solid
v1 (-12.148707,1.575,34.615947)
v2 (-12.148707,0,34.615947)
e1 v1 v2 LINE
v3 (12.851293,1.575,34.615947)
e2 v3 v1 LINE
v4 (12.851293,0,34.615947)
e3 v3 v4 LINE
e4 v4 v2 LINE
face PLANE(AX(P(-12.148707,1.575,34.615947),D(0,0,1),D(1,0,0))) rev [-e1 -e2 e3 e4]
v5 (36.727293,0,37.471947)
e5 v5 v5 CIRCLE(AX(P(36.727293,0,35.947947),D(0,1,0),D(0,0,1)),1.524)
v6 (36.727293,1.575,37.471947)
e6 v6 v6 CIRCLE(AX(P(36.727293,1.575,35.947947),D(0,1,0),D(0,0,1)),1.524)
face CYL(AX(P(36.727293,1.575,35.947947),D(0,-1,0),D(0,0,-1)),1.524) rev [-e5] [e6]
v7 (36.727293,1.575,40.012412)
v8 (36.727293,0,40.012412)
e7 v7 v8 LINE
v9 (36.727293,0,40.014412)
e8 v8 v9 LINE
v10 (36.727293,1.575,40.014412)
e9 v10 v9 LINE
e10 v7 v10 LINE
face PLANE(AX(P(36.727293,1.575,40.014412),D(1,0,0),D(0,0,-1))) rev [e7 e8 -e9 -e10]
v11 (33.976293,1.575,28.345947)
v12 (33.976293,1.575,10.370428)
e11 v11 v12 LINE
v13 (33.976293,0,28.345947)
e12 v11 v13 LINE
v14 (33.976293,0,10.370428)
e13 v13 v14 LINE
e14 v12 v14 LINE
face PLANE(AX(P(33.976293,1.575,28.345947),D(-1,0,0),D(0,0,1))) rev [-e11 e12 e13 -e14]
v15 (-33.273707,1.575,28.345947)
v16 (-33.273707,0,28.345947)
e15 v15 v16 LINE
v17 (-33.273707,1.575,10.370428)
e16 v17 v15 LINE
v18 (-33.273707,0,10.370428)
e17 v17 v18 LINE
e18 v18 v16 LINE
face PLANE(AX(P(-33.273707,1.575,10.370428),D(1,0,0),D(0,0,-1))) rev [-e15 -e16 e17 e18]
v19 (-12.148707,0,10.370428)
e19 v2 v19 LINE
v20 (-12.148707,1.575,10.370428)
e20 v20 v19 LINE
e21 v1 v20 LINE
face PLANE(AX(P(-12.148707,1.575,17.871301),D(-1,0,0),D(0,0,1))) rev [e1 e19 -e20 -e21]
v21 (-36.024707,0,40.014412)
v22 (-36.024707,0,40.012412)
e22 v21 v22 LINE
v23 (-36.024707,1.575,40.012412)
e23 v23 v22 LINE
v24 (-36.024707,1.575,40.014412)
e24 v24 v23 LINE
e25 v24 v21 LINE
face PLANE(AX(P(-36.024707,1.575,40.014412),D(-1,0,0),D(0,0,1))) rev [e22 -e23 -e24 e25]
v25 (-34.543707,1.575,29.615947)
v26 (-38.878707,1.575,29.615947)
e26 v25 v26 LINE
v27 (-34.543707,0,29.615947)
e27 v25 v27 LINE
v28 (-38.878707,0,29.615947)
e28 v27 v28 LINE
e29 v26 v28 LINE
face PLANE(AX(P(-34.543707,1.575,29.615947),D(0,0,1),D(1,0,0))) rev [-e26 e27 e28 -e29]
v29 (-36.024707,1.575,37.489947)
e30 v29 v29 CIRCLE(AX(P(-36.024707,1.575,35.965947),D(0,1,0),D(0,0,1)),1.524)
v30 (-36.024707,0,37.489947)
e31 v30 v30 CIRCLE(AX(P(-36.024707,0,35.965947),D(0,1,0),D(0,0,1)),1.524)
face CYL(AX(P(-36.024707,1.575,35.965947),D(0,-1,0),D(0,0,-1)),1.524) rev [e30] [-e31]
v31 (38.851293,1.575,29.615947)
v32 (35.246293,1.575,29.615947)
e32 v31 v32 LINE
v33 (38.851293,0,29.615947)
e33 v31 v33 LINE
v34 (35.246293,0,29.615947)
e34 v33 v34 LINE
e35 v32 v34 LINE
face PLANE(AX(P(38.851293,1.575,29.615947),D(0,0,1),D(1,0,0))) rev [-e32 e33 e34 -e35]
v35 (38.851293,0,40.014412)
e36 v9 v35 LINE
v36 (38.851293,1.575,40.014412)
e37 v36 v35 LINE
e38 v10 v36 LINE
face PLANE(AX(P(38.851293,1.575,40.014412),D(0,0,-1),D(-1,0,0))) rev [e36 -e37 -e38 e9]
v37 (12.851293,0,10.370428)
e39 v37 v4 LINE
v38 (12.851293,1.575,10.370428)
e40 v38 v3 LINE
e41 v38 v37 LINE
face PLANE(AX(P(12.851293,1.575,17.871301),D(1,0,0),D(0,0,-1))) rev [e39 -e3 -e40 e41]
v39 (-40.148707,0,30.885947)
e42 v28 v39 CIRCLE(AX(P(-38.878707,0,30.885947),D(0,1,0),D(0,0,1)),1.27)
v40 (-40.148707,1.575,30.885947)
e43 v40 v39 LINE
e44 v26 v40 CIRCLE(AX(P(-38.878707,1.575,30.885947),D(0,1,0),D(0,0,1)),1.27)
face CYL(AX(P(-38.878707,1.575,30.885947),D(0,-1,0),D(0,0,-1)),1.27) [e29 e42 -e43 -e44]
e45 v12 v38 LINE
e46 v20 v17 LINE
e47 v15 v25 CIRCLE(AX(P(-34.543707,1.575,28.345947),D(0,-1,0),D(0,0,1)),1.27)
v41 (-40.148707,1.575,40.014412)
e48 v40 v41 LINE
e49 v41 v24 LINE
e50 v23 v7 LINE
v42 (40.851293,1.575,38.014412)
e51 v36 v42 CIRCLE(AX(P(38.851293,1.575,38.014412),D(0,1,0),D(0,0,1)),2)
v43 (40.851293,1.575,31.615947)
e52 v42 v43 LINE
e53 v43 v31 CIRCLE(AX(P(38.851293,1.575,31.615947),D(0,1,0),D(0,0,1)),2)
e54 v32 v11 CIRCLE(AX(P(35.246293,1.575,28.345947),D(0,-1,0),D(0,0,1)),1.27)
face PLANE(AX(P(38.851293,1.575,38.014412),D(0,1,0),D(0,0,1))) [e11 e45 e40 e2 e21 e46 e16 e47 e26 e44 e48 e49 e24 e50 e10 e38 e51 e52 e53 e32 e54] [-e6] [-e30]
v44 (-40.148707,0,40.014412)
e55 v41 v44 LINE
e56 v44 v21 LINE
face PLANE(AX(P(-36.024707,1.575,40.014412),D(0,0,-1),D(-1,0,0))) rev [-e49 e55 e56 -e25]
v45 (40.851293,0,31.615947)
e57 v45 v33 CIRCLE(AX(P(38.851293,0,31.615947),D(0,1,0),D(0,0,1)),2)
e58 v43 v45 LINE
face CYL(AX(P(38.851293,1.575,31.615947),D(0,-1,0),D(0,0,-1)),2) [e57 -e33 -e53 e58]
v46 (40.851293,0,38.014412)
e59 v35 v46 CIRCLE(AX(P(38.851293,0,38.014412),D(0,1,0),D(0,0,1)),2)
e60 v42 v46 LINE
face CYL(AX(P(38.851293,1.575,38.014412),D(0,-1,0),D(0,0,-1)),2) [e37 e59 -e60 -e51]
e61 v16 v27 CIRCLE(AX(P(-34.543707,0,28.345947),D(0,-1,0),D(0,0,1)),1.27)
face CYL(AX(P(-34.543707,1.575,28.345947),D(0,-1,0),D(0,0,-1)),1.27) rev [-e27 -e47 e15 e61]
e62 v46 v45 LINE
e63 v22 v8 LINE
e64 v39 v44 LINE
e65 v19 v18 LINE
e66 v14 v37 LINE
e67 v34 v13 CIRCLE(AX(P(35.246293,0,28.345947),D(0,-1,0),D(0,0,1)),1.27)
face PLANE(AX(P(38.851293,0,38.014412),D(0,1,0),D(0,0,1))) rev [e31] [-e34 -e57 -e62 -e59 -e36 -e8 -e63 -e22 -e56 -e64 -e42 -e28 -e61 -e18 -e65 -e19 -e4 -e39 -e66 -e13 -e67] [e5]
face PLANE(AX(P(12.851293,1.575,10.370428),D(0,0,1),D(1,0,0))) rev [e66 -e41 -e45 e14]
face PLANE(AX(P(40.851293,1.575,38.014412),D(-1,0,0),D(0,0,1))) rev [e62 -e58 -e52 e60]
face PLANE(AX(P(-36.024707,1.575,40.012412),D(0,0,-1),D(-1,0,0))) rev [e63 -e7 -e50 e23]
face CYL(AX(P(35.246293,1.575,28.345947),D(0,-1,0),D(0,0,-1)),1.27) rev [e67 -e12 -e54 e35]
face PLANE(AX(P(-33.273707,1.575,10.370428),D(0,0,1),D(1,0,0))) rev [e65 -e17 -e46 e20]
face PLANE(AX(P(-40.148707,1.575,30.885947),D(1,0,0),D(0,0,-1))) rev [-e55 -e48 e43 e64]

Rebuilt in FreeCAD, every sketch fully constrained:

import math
import FreeCAD as App
import Part
import Sketcher
Q = App.Units.Quantity

doc = App.newDocument("Part")
body = doc.addObject("PartDesign::Body", "Body")

# Sketch on XZ plane
sketch1 = body.newObject("Sketcher::SketchObject", "Sketch")
sketch1.AttachmentSupport = (doc.getObject("XZ_Plane"), [""])
sketch1.MapMode = "FlatFace"
sketch1.addGeometry([
    Part.LineSegment(App.Vector(36.7273, 40.0144, 0), App.Vector(38.8513, 40.0144, 0)),  # 0
    Part.ArcOfCircle(Part.Circle(App.Vector(38.8513, 38.0144, 0), App.Vector(0, 0, 1), 2), math.radians(0), math.radians(90)),  # 1
    Part.LineSegment(App.Vector(40.8513, 38.0144, 0), App.Vector(40.8513, 31.6159, 0)),  # 2
    Part.ArcOfCircle(Part.Circle(App.Vector(38.8513, 31.6159, 0), App.Vector(0, 0, 1), 2), math.radians(-90), math.radians(0)),  # 3
    Part.LineSegment(App.Vector(38.8513, 29.6159, 0), App.Vector(35.2463, 29.6159, 0)),  # 4
    Part.ArcOfCircle(Part.Circle(App.Vector(35.2463, 28.3459, 0), App.Vector(0, 0, 1), 1.27), math.radians(90), math.radians(180)),  # 5
    Part.LineSegment(App.Vector(33.9763, 28.3459, 0), App.Vector(33.9763, 10.3704, 0)),  # 6
    Part.LineSegment(App.Vector(33.9763, 10.3704, 0), App.Vector(12.8513, 10.3704, 0)),  # 7
    Part.LineSegment(App.Vector(12.8513, 10.3704, 0), App.Vector(12.8513, 34.6159, 0)),  # 8
    Part.LineSegment(App.Vector(12.8513, 34.6159, 0), App.Vector(-12.1487, 34.6159, 0)),  # 9
    Part.LineSegment(App.Vector(-12.1487, 34.6159, 0), App.Vector(-12.1487, 10.3704, 0)),  # 10
    Part.LineSegment(App.Vector(-12.1487, 10.3704, 0), App.Vector(-33.2737, 10.3704, 0)),  # 11
    Part.LineSegment(App.Vector(-33.2737, 10.3704, 0), App.Vector(-33.2737, 28.3459, 0)),  # 12
    Part.ArcOfCircle(Part.Circle(App.Vector(-34.5437, 28.3459, 0), App.Vector(0, 0, 1), 1.27), math.radians(0), math.radians(90)),  # 13
    Part.LineSegment(App.Vector(-34.5437, 29.6159, 0), App.Vector(-38.8787, 29.6159, 0)),  # 14
    Part.ArcOfCircle(Part.Circle(App.Vector(-38.8787, 30.8859, 0), App.Vector(0, 0, 1), 1.27), math.radians(180), math.radians(270)),  # 15
    Part.LineSegment(App.Vector(-40.1487, 30.8859, 0), App.Vector(-40.1487, 40.0144, 0)),  # 16
    Part.LineSegment(App.Vector(-40.1487, 40.0144, 0), App.Vector(-36.0247, 40.0144, 0)),  # 17
    Part.LineSegment(App.Vector(-36.0247, 40.0144, 0), App.Vector(-36.0247, 40.0124, 0)),  # 18
    Part.LineSegment(App.Vector(-36.0247, 40.0124, 0), App.Vector(36.7273, 40.0124, 0)),  # 19
    Part.LineSegment(App.Vector(36.7273, 40.0124, 0), App.Vector(36.7273, 40.0144, 0)),  # 20
    Part.Circle(App.Vector(-36.0247, 35.9659, 0), App.Vector(0, 0, 1), 1.524),  # 21
    Part.Circle(App.Vector(36.7273, 35.9479, 0), App.Vector(0, 0, 1), 1.524),  # 22
], False)
sketch1.addConstraint([
    Sketcher.Constraint("Tangent", 0, 2, 1, 2),
    Sketcher.Constraint("Tangent", 1, 1, 2, 1),
    Sketcher.Constraint("Tangent", 2, 2, 3, 2),
    Sketcher.Constraint("Tangent", 3, 1, 4, 1),
    Sketcher.Constraint("Tangent", 4, 2, 5, 1),
    Sketcher.Constraint("Tangent", 5, 2, 6, 1),
    Sketcher.Constraint("Coincident", 6, 2, 7, 1),
    Sketcher.Constraint("Coincident", 7, 2, 8, 1),
    Sketcher.Constraint("Coincident", 8, 2, 9, 1),
    Sketcher.Constraint("Coincident", 9, 2, 10, 1),
    Sketcher.Constraint("Coincident", 10, 2, 11, 1),
    Sketcher.Constraint("Coincident", 11, 2, 12, 1),
    Sketcher.Constraint("Tangent", 12, 2, 13, 1),
    Sketcher.Constraint("Tangent", 13, 2, 14, 1),
    Sketcher.Constraint("Tangent", 14, 2, 15, 2),
    Sketcher.Constraint("Tangent", 15, 1, 16, 1),
    Sketcher.Constraint("Coincident", 16, 2, 17, 1),
    Sketcher.Constraint("Coincident", 17, 2, 18, 1),
    Sketcher.Constraint("Coincident", 18, 2, 19, 1),
    Sketcher.Constraint("Coincident", 19, 2, 20, 1),
    Sketcher.Constraint("Coincident", 20, 2, 0, 1),
    Sketcher.Constraint("Horizontal", 0),
    Sketcher.Constraint("Vertical", 2),
    Sketcher.Constraint("Horizontal", 4),
    Sketcher.Constraint("Vertical", 6),
    Sketcher.Constraint("Horizontal", 7),
    Sketcher.Constraint("Vertical", 8),
    Sketcher.Constraint("Horizontal", 9),
    Sketcher.Constraint("Vertical", 10),
    Sketcher.Constraint("Horizontal", 11),
    Sketcher.Constraint("Vertical", 12),
    Sketcher.Constraint("Horizontal", 14),
    Sketcher.Constraint("Vertical", 16),
    Sketcher.Constraint("Horizontal", 17),
    Sketcher.Constraint("Vertical", 18),
    Sketcher.Constraint("Horizontal", 19),
    Sketcher.Constraint("Vertical", 20),
    Sketcher.Constraint("Equal", 1, 3),
    Sketcher.Constraint("Equal", 5, 13),
    Sketcher.Constraint("Equal", 13, 15),
    Sketcher.Constraint("Equal", 21, 22),
    Sketcher.Constraint("Horizontal", 5, 3, 13, 3),
    Sketcher.Constraint("Horizontal", 7, 2, 10, 2),
    Sketcher.Constraint("Horizontal", 0, 2, 16, 2),
    Sketcher.Constraint("Vertical", 21, 3, 17, 2),
    Sketcher.Constraint("Vertical", 22, 3, 19, 2),
    Sketcher.Constraint("Equal", 7, 11),
    Sketcher.Constraint("Radius", 1, Q("2 mm")),
    Sketcher.Constraint("DistanceX", 9, 2, 9, 1, Q("25 mm")),
    Sketcher.Constraint("Radius", 5, Q("1.27 mm")),
    Sketcher.Constraint("Diameter", 21, Q("3.048 mm")),
    Sketcher.Constraint("DistanceX", 7, 2, 3, 1, Q("26 mm")),
    Sketcher.Constraint("DistanceY", 4, 2, 8, 2, Q("5 mm")),
    Sketcher.Constraint("DistanceX", 0, 1, 0, 2, Q("2.124 mm")),
    Sketcher.Constraint("DistanceX", 4, 2, 4, 1, Q("3.605 mm")),
    Sketcher.Constraint("DistanceX", 14, 2, 14, 1, Q("4.335 mm")),
    Sketcher.Constraint("DistanceX", 17, 1, 17, 2, Q("4.124 mm")),
    Sketcher.Constraint("DistanceY", 18, 2, 18, 1, Q("0.002 mm")),
    Sketcher.Constraint("DistanceY", 15, 3, 21, 3, Q("5.08 mm")),
    Sketcher.Constraint("DistanceY", 3, 3, 22, 3, Q("4.332 mm")),
    Sketcher.Constraint("DistanceY", 6, 2, 6, 1, Q("17.975518 mm")),
    Sketcher.Constraint("DistanceY", 2, 2, 2, 1, Q("6.398465 mm")),
    Sketcher.Constraint("DistanceY", -1, 1, 6, 2, Q("10.370428 mm")),
    Sketcher.Constraint("DistanceX", -1, 1, 1, 3, Q("38.851293 mm")),
])
pad1 = body.newObject("PartDesign::Pad", "Pad")
pad1.Profile = sketch1
pad1.Length = 1.575
pad1.Reversed = True

doc.recompute()
